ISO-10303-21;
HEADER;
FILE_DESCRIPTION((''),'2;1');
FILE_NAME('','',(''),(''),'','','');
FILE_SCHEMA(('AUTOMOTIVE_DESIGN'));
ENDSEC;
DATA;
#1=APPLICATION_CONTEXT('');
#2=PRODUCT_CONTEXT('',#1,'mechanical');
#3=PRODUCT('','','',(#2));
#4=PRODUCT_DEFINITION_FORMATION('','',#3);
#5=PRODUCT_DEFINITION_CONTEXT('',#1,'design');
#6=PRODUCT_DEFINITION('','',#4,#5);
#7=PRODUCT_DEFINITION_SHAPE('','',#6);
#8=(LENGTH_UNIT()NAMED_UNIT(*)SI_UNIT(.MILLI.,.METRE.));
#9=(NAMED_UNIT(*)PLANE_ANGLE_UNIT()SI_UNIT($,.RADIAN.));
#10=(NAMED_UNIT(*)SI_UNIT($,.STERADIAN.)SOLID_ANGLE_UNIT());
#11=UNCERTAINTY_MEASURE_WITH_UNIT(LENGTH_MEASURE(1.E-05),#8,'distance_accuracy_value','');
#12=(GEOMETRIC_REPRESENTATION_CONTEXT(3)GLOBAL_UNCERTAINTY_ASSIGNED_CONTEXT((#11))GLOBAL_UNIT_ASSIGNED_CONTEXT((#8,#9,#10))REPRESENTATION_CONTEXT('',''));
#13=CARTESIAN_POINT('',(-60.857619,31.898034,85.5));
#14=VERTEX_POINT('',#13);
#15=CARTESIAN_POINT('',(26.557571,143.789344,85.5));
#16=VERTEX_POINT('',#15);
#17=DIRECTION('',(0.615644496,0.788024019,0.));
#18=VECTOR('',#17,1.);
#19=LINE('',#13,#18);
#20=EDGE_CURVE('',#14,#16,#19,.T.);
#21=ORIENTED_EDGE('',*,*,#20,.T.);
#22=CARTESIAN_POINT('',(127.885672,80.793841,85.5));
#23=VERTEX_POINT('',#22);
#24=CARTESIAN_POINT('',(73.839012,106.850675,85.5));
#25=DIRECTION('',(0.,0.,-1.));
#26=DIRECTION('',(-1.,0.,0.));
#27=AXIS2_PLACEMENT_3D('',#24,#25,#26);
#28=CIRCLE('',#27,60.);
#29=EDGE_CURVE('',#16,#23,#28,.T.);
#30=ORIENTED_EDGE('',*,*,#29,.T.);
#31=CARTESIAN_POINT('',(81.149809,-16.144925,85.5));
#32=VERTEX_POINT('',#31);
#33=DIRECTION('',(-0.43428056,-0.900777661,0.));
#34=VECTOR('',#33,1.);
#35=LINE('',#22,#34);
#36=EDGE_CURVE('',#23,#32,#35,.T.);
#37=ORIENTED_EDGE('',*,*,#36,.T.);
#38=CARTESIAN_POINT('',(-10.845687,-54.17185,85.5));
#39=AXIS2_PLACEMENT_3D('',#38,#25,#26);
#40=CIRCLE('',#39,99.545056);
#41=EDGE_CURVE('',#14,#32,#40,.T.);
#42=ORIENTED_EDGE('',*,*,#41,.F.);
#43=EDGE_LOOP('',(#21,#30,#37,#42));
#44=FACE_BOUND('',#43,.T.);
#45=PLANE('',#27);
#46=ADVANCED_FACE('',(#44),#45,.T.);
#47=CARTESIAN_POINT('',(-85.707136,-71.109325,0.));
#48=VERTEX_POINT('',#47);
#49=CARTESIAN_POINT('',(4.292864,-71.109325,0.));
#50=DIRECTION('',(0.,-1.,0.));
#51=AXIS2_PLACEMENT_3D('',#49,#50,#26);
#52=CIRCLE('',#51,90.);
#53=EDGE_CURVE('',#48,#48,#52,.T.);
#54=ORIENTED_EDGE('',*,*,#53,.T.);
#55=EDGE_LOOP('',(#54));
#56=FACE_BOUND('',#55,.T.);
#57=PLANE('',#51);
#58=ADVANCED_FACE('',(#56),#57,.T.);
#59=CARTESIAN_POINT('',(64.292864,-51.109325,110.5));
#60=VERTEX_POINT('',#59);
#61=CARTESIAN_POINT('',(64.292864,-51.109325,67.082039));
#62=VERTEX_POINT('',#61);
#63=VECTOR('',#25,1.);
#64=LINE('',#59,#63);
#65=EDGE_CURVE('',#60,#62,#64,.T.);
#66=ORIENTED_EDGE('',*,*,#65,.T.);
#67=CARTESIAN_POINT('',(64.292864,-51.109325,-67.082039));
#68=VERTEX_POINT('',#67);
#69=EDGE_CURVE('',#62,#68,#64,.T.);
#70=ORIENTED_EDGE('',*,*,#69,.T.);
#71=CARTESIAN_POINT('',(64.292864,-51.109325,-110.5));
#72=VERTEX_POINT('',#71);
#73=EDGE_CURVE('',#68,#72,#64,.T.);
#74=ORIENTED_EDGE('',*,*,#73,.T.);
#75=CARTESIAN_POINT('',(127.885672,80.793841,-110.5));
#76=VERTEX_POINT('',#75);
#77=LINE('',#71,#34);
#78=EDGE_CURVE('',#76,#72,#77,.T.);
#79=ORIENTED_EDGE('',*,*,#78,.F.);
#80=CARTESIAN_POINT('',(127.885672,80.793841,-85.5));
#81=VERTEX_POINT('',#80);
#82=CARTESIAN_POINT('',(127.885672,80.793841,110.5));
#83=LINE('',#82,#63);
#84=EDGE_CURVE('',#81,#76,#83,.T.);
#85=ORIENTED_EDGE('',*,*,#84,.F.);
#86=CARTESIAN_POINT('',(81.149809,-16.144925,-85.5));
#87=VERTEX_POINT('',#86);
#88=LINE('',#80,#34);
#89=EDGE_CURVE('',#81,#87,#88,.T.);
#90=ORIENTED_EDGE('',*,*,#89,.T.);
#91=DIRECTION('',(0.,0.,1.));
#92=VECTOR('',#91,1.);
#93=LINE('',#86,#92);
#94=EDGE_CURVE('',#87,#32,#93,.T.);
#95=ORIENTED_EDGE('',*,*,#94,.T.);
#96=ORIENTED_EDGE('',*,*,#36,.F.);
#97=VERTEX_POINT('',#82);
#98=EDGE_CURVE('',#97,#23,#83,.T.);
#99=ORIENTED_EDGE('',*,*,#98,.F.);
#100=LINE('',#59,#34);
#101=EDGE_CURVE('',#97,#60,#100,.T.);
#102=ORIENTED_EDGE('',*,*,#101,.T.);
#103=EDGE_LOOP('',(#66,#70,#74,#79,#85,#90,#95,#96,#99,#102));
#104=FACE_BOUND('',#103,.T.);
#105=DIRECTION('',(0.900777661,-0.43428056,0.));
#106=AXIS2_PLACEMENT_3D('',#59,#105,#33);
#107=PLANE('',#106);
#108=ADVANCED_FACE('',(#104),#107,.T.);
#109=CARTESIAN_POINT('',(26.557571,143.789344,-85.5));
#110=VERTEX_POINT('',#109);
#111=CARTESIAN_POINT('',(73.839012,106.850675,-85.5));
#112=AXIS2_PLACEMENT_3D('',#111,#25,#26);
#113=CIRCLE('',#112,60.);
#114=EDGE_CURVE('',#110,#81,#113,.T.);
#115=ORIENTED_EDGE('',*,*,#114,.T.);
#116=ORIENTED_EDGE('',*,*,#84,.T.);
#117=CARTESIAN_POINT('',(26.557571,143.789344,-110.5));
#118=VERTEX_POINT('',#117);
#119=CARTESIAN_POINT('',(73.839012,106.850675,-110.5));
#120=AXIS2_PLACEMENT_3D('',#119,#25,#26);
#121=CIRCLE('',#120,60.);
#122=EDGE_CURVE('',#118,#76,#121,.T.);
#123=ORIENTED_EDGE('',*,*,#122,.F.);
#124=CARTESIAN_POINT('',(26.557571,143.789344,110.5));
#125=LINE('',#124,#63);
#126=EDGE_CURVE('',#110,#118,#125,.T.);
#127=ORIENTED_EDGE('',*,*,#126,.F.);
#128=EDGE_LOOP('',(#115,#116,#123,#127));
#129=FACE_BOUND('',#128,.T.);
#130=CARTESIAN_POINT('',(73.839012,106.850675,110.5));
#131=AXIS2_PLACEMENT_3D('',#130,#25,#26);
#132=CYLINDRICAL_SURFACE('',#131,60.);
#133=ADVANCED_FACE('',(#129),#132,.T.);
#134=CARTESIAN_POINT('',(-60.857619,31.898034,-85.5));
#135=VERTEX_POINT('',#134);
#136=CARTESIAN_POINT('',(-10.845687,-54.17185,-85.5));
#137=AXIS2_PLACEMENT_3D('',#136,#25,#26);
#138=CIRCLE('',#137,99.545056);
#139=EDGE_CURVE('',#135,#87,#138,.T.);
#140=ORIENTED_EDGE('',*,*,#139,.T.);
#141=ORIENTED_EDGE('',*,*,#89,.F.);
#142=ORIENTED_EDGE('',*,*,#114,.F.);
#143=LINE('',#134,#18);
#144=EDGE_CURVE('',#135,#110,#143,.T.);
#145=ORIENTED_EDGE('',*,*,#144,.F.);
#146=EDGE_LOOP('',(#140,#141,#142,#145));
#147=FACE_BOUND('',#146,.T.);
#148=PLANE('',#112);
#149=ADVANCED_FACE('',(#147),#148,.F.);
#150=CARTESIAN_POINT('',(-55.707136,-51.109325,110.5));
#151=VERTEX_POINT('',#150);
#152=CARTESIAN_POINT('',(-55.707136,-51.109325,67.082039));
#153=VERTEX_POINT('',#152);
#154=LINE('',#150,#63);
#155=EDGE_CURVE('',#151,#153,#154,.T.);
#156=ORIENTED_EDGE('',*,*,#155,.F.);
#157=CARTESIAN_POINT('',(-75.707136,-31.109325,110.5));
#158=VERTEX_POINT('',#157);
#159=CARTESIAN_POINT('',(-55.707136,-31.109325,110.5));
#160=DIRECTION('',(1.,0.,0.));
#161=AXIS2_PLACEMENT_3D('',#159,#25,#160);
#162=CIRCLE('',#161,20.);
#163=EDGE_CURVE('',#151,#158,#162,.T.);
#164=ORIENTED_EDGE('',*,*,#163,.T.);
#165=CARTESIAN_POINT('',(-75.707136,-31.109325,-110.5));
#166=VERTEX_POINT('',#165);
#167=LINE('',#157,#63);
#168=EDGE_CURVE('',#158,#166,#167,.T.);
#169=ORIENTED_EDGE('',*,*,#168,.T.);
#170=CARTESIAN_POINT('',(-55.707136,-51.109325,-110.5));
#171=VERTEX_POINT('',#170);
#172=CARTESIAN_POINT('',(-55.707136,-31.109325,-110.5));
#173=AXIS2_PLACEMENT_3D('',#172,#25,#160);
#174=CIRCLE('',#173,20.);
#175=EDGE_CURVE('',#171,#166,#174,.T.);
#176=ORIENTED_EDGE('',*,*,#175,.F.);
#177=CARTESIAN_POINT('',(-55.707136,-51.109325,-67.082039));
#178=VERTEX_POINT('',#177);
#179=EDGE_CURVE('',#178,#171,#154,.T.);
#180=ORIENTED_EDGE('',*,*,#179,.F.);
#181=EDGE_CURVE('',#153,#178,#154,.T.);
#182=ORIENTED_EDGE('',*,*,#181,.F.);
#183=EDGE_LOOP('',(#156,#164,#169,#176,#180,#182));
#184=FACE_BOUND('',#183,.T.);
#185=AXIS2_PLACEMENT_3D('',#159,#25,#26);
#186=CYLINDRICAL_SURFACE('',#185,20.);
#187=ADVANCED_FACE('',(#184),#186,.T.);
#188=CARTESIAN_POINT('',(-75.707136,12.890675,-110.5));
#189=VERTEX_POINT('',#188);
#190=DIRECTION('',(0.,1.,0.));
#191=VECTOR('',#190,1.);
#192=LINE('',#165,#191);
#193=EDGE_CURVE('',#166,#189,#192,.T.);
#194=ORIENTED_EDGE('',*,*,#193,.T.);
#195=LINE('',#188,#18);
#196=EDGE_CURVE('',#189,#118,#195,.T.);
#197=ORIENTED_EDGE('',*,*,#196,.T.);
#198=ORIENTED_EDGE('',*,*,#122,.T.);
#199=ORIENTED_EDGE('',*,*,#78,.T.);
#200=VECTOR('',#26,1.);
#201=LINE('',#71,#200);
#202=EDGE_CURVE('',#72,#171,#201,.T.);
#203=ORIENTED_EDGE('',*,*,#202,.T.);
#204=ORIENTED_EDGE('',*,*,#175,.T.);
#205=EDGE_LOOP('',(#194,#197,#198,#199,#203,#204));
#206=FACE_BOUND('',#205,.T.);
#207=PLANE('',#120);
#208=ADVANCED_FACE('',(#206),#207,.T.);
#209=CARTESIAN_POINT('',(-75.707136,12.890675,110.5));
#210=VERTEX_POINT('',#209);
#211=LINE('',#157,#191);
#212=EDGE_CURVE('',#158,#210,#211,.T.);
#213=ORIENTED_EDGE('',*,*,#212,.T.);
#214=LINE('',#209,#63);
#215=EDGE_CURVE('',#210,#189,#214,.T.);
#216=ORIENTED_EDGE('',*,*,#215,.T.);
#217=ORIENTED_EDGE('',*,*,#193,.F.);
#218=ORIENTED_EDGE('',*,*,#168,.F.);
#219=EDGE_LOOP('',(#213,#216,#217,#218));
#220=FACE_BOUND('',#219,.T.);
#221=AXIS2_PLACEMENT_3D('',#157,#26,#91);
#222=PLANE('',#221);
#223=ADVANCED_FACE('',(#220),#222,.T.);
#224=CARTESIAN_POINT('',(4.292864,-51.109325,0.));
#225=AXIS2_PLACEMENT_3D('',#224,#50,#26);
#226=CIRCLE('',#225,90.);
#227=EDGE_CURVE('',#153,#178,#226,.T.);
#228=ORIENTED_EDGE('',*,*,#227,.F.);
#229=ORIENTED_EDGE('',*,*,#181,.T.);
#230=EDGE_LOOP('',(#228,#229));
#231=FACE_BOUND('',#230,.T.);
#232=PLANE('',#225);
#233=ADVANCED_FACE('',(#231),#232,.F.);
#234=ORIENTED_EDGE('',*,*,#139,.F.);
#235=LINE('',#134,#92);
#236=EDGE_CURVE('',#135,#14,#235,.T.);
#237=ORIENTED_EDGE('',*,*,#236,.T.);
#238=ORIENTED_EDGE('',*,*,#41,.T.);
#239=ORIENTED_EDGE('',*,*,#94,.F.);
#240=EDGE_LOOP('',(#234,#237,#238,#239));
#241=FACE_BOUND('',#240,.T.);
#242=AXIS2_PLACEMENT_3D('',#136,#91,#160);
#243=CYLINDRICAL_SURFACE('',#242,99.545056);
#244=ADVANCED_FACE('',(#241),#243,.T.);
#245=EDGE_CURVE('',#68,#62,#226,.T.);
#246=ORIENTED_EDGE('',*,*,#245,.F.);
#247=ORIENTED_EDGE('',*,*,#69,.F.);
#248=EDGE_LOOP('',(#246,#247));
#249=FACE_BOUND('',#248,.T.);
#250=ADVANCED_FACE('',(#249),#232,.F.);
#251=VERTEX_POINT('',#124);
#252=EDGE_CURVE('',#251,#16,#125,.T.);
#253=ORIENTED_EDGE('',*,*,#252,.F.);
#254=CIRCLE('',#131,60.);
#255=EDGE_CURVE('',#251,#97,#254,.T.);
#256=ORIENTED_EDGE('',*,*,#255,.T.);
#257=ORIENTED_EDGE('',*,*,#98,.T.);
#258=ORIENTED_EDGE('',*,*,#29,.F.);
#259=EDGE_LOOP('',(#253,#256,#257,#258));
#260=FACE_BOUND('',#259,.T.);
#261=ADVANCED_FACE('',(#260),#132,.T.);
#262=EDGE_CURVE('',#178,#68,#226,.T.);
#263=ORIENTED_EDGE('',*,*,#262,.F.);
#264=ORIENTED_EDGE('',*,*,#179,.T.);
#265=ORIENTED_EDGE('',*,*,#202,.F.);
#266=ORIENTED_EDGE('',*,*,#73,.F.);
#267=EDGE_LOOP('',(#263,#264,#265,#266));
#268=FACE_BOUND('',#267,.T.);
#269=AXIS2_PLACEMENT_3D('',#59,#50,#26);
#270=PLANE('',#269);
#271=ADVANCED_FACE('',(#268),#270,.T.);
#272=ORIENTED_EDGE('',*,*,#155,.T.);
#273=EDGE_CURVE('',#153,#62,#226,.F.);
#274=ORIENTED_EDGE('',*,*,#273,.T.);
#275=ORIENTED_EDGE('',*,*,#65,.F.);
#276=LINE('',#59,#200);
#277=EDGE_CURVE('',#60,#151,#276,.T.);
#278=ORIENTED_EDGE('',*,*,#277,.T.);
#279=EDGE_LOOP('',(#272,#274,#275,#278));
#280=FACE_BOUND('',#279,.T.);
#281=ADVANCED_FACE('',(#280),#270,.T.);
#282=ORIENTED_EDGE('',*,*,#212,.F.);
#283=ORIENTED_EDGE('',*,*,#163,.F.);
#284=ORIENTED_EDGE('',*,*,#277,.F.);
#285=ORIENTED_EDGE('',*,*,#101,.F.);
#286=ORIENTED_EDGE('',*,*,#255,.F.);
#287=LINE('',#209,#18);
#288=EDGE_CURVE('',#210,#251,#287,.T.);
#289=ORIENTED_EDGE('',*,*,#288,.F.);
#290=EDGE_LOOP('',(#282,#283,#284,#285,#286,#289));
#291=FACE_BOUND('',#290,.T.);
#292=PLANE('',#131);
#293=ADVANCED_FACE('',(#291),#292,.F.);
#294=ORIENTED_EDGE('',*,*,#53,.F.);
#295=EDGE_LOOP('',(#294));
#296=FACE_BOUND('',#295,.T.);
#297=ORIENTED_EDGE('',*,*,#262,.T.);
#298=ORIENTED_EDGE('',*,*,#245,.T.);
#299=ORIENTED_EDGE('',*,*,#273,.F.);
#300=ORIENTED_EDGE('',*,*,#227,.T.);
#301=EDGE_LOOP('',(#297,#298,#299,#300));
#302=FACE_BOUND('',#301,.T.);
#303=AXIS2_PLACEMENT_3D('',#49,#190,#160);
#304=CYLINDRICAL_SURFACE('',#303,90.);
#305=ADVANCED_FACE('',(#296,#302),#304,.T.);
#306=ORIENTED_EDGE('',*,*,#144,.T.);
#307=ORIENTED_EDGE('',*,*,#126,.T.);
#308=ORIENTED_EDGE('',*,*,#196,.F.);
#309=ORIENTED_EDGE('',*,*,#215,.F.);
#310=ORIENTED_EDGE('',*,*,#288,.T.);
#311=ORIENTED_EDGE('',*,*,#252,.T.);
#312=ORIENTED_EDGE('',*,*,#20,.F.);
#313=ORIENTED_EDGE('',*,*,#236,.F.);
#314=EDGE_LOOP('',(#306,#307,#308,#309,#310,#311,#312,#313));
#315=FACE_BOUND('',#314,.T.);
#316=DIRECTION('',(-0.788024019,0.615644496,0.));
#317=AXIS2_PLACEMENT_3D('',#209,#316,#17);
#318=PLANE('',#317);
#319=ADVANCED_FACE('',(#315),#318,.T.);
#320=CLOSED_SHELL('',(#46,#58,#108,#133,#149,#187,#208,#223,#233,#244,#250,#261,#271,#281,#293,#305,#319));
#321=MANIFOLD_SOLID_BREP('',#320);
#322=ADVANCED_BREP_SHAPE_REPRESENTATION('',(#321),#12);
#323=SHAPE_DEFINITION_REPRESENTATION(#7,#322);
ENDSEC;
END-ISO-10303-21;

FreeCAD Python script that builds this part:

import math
import FreeCAD as App
import Part
import Sketcher
from FreeCAD import Vector
Q = App.Units.Quantity

doc = App.newDocument("Part")
body = doc.addObject("PartDesign::Body", "Body")

sketch1 = body.newObject("Sketcher::SketchObject", "Sketch")
sketch1.AttachmentSupport = (doc.getObject("YZ_Plane"), [""])
sketch1.MapMode = "FlatFace"
sketch1.addGeometry([
    Part.LineSegment(Vector(-51, 64, 0), Vector(-51, -56, 0)),
    Part.ArcOfCircle(Part.Circle(Vector(-31, -56, 0), Vector(0, 0, 1), 20), math.radians(180), math.radians(270)),
    Part.LineSegment(Vector(-31, -76, 0), Vector(13, -76, 0)),
    Part.LineSegment(Vector(13, -76, 0), Vector(144, 27, 0)),
    Part.ArcOfCircle(Part.Circle(Vector(107, 74, 0), Vector(0, 0, 1), 60), math.radians(-52), math.radians(116)),
    Part.LineSegment(Vector(81, 128, 0), Vector(-51, 64, 0)),
], False)
sketch1.addConstraint([
    Sketcher.Constraint("Tangent", 0, 2, 1, 1),
    Sketcher.Constraint("Tangent", 1, 2, 2, 1),
    Sketcher.Constraint("Coincident", 2, 2, 3, 1),
    Sketcher.Constraint("Tangent", 3, 2, 4, 1),
    Sketcher.Constraint("Tangent", 4, 2, 5, 1),
    Sketcher.Constraint("Coincident", 5, 2, 0, 1),
    Sketcher.Constraint("Vertical", 0),
    Sketcher.Constraint("Horizontal", 2),
    Sketcher.Constraint("Radius", 1, Q("20 mm")),
    Sketcher.Constraint("Radius", 4, Q("60 mm")),
    Sketcher.Constraint("DistanceX", 2, 1, 2, 2, Q("44 mm")),
    Sketcher.Constraint("DistanceY", 0, 2, 0, 1, Q("120 mm")),
    Sketcher.Constraint("Distance", 3, Q("166.11 mm")),
    Sketcher.Constraint("DistanceX", 1, 3, 4, 3, Q("137.96 mm")),
    Sketcher.Constraint("DistanceY", -1, 1, 3, 2, Q("26.557571 mm")),
    Sketcher.Constraint("DistanceX", -1, 1, 4, 2, Q("80.793841 mm")),
])
pad1 = body.newObject("PartDesign::Pad", "Pad")
pad1.Profile = sketch1
pad1.Type = "TwoLengths"
pad1.Length = 110.5
pad1.Length2 = 110.5

sketch2 = body.newObject("Sketcher::SketchObject", "Sketch001")
sketch2.AttachmentSupport = (doc.getObject("YZ_Plane"), [""])
sketch2.MapMode = "FlatFace"
sketch2.addGeometry([
    Part.LineSegment(Vector(81, 128, 0), Vector(-16, 81, 0)),
    Part.ArcOfCircle(Part.Circle(Vector(-54, -11, 0), Vector(0, 0, 1), 100), math.radians(-30), math.radians(68)),
    Part.LineSegment(Vector(32, -61, 0), Vector(144, 27, 0)),
    Part.ArcOfCircle(Part.Circle(Vector(107, 74, 0), Vector(0, 0, 1), 60), math.radians(-52), math.radians(116)),
], False)
sketch2.addConstraint([
    Sketcher.Constraint("Coincident", 0, 2, 1, 2),
    Sketcher.Constraint("Coincident", 1, 1, 2, 1),
    Sketcher.Constraint("Tangent", 2, 2, 3, 1),
    Sketcher.Constraint("Tangent", 3, 2, 0, 1),
    Sketcher.Constraint("Radius", 3, Q("60 mm")),
    Sketcher.Constraint("Radius", 1, Q("99.545056 mm")),
    Sketcher.Constraint("DistanceY", 1, 3, 3, 3, Q("84.684699 mm")),
    Sketcher.Constraint("DistanceX", 0, 2, 3, 3, Q("122.9956 mm")),
    Sketcher.Constraint("DistanceY", 2, 2, 3, 2, Q("101.328101 mm")),
    Sketcher.Constraint("Distance", 0, Q("107.616752 mm")),
    Sketcher.Constraint("DistanceX", 1, 3, -1, 1, Q("54.17185 mm")),
    Sketcher.Constraint("DistanceY", -1, 1, 0, 2, Q("81.149809 mm")),
])
pocket1 = body.newObject("PartDesign::Pocket", "Pocket")
pocket1.Profile = sketch2
pocket1.Type = "TwoLengths"
pocket1.Length = 85.5
pocket1.Length2 = 85.5
pocket1.Reversed = True

sketch3 = body.newObject("Sketcher::SketchObject", "Sketch002")
sketch3.AttachmentSupport = (doc.getObject("XZ_Plane"), [""])
sketch3.MapMode = "FlatFace"
sketch3.AttachmentOffset = App.Placement(Vector(0, 0, 51.109325), App.Rotation())
sketch3.addGeometry(Part.Circle(Vector(0, 4, 0), Vector(0, 0, 1), 90), False)
sketch3.addConstraint([
    Sketcher.Constraint("PointOnObject", 0, 3, -2),
    Sketcher.Constraint("Diameter", 0, Q("180 mm")),
    Sketcher.Constraint("DistanceY", -1, 1, 0, 3, Q("4.292864 mm")),
])
pad2 = body.newObject("PartDesign::Pad", "Pad001")
pad2.Profile = sketch3
pad2.Length = 20
body2 = doc.addObject("PartDesign::Body", "Body001")
doc.recompute()

body.Placement = App.Placement(Vector(0, 0, 0), App.Rotation(Vector(0, 1, 0), 90))
boolean = body2.newObject("PartDesign::Boolean", "Boolean")
boolean.Type = "Fuse"
boolean.addObjects([body])

doc.recompute()
